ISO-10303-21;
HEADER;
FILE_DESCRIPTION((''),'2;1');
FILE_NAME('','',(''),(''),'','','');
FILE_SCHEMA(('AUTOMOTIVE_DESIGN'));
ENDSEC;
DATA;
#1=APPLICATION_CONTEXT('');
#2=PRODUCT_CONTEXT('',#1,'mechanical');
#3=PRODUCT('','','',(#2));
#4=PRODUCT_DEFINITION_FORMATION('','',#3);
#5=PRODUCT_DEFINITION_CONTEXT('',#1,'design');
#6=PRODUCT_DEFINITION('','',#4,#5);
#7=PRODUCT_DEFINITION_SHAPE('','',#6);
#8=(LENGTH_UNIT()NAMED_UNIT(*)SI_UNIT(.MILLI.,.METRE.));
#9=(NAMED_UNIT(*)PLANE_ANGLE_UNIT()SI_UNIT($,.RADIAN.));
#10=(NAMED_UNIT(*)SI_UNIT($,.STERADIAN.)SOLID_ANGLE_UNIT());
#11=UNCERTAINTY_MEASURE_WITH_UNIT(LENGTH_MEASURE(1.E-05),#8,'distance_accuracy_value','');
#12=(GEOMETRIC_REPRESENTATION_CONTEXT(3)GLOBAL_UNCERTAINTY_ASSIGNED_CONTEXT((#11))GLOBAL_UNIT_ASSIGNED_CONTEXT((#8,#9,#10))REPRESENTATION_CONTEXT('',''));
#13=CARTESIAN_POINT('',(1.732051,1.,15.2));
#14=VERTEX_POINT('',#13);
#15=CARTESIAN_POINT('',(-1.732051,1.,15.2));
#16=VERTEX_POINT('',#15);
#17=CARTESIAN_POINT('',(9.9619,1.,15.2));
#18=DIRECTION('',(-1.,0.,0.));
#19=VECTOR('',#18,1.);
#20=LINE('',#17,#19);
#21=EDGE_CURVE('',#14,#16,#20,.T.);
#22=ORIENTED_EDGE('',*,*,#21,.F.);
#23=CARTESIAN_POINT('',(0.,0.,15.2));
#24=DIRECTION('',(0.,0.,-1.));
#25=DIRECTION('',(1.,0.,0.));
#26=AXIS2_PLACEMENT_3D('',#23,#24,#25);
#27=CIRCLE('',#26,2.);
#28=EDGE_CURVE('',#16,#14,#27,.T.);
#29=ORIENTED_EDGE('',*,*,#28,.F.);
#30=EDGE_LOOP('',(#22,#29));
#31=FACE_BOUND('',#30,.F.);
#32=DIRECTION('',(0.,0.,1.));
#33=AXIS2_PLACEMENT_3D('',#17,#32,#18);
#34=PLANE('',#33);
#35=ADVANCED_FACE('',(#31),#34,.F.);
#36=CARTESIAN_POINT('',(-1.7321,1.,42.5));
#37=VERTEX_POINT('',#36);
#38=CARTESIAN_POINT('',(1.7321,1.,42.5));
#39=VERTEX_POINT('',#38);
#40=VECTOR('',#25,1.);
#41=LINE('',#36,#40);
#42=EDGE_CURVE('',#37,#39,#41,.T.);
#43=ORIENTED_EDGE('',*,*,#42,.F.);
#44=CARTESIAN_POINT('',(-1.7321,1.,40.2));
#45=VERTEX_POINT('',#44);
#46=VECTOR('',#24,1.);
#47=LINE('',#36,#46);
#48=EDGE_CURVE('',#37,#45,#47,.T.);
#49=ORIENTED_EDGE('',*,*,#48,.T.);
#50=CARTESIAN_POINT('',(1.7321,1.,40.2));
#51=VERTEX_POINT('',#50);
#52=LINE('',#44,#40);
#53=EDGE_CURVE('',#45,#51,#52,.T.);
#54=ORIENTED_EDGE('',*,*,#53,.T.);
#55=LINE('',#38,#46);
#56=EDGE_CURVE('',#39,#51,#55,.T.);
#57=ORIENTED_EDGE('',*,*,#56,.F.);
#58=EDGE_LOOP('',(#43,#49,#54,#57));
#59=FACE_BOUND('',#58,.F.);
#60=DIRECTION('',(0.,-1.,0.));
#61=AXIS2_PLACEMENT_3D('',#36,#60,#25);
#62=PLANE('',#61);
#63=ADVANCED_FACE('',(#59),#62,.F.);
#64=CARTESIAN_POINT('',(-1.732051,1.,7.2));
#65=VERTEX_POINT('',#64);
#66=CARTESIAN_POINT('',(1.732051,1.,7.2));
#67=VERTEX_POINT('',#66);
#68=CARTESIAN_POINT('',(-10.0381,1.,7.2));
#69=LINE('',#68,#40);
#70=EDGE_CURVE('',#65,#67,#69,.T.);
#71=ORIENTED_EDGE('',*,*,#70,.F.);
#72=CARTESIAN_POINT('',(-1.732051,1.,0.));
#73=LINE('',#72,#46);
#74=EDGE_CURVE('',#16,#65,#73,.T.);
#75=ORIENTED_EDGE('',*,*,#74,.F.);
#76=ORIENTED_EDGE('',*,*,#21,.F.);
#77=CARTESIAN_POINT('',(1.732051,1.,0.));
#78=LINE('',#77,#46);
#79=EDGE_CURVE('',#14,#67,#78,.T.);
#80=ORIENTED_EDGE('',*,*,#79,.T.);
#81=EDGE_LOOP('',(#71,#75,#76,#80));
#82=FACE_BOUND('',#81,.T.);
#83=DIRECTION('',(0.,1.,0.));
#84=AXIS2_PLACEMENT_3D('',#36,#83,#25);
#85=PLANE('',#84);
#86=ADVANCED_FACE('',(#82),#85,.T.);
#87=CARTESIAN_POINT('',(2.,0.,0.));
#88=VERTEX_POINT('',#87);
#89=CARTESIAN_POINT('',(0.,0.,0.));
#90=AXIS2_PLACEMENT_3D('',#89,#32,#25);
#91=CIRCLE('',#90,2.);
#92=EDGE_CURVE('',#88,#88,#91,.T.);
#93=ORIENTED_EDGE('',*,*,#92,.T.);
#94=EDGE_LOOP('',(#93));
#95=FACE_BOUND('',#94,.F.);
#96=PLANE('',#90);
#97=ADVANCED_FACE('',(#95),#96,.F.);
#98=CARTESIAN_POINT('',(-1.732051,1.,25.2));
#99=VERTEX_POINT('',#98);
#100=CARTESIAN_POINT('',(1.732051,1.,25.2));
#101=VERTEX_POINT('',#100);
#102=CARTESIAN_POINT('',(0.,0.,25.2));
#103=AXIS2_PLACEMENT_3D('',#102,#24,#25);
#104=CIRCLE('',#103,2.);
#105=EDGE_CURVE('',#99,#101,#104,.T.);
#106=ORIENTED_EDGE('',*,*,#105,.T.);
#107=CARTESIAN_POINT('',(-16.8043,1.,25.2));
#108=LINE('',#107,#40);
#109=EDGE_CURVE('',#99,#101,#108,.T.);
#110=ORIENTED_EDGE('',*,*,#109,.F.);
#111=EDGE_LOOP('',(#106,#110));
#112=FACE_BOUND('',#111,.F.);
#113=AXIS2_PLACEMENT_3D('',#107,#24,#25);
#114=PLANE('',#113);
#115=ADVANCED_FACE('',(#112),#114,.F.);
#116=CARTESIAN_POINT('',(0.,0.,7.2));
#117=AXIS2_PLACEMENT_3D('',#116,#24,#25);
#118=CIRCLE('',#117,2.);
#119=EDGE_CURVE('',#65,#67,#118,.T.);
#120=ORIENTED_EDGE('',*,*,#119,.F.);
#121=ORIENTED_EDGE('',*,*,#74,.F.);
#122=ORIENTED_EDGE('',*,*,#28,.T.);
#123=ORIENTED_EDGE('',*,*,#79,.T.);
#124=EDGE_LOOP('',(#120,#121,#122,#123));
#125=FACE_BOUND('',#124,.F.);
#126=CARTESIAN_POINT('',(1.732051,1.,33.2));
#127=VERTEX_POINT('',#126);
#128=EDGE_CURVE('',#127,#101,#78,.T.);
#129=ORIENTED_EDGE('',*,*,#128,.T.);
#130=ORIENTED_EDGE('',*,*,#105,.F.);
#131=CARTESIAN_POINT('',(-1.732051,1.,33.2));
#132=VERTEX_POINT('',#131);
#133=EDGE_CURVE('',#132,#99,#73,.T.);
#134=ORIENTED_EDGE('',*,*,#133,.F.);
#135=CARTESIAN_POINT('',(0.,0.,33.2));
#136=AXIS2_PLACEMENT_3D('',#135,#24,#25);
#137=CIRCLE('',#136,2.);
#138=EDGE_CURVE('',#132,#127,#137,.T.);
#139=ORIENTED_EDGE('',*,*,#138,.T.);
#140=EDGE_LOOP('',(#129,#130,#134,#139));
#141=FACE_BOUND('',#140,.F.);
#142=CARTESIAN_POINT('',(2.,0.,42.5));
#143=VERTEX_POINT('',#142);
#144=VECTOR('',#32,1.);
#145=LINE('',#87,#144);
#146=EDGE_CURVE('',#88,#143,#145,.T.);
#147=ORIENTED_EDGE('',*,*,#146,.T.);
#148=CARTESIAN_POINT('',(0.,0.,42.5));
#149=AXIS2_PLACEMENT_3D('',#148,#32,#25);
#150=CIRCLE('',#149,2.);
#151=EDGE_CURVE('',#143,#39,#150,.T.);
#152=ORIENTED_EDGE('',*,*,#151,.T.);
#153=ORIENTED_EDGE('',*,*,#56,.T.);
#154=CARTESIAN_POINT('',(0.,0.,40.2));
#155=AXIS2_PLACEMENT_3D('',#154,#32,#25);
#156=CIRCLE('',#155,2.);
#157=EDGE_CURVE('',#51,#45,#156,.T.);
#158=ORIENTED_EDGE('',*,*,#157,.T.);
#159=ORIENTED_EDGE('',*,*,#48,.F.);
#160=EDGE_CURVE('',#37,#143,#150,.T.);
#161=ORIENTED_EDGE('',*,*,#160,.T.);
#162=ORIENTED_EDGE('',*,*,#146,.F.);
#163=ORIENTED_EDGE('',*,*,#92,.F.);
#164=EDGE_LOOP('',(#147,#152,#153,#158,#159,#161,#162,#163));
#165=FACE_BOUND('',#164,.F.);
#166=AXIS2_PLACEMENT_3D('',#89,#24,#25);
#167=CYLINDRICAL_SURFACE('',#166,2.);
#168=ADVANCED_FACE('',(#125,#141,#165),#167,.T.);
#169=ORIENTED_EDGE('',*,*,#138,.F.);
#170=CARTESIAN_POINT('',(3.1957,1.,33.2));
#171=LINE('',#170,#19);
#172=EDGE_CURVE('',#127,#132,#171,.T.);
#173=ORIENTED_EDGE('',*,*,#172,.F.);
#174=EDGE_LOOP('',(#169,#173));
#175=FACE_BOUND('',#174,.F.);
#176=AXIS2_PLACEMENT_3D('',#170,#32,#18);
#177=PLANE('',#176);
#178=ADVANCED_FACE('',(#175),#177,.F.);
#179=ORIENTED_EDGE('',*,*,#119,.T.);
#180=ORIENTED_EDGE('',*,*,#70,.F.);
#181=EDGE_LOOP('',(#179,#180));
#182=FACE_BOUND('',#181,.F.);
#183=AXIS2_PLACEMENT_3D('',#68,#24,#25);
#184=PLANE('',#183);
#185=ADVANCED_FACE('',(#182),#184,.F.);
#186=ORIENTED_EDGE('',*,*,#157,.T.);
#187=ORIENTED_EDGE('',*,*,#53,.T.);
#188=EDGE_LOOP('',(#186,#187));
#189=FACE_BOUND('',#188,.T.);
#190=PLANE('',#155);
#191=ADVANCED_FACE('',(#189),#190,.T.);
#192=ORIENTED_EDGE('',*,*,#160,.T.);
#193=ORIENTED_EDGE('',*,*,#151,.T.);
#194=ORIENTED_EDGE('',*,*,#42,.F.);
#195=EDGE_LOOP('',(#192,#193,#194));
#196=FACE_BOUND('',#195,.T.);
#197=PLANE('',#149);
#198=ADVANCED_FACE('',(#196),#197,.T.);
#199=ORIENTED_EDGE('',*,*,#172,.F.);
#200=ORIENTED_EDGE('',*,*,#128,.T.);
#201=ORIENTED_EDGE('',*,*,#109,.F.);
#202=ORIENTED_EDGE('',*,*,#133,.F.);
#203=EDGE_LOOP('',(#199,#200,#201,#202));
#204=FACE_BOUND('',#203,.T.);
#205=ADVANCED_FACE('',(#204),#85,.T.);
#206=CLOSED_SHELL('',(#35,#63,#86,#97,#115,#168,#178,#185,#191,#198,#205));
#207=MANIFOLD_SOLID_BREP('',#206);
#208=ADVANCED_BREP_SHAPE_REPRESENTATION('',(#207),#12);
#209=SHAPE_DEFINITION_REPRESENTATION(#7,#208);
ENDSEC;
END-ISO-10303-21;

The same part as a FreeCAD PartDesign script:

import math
import FreeCAD as App
import Part
import Sketcher
Q = App.Units.Quantity


def add_polygon(sketch, points):
    """Adds a closed chain of lines whose ends are joined by coincident constraints."""
    first, n = sketch.GeometryCount, len(points)
    for a, b in zip(points, points[1:] + points[:1]):
        sketch.addGeometry(Part.LineSegment(App.Vector(*a, 0), App.Vector(*b, 0)), False)
    for i in range(n):
        sketch.addConstraint(Sketcher.Constraint("Coincident", first + i, 2, first + (i + 1) % n, 1))

doc = App.newDocument("Part")
params = doc.addObject("Spreadsheet::Sheet", "Params")
for row, (alias, value) in enumerate([
    ("sketch1_diameter", "4 mm"),
    ("pad1_length", "42.5 mm"),
    ("sketch2_radius", "2 mm"),
    ("pocket1_length", "2.3 mm"),
    ("sketch3_width", "20 mm"),
    ("sketch3_height", "8 mm"),
    ("pocket2_length", "10 mm"),
], start=1):
    params.set(f"A{row}", alias)
    params.set(f"B{row}", "=" + value)
    params.setAlias(f"B{row}", alias)

body = doc.addObject("PartDesign::Body", "Body")

# Sketch on XY plane
sketch1 = doc.addObject("Sketcher::SketchObject", "Sketch")
body.addObject(sketch1)
sketch1.AttachmentSupport = (doc.XY_Plane, [""])
sketch1.MapMode = "FlatFace"
sketch1.addGeometry(Part.Circle(App.Vector(0, 0, 0), App.Vector(0, 0, 1), 2), False)
sketch1.addConstraint([
    Sketcher.Constraint("Coincident", 0, 3, -1, 1),
    Sketcher.Constraint("Diameter", 0, Q("4 mm")),
])
sketch1.setExpression("Constraints[1]", "Params.sketch1_diameter")
pad1 = doc.addObject("PartDesign::Pad", "Pad")
body.addObject(pad1)
pad1.Profile = sketch1
pad1.setExpression("Length", "Params.pad1_length")

# Sketch on XY plane
sketch2 = doc.addObject("Sketcher::SketchObject", "Sketch001")
body.addObject(sketch2)
sketch2.AttachmentSupport = (doc.XY_Plane, [""])
sketch2.MapMode = "FlatFace"
sketch2.AttachmentOffset = App.Placement(App.Vector(0, 0, 42.5), App.Rotation())
sketch2.addGeometry([
    Part.LineSegment(App.Vector(-1.7321, 1, 0), App.Vector(1.7321, 1, 0)),
    Part.ArcOfCircle(Part.Circle(App.Vector(0, 0, 0), App.Vector(0, 0, 1), 2), math.radians(29.999295), math.radians(150.000705)),
], False)
sketch2.addConstraint([
    Sketcher.Constraint("Coincident", 0, 1, 1, 2),
    Sketcher.Constraint("Coincident", 1, 1, 0, 2),
    Sketcher.Constraint("Horizontal", 0),
    Sketcher.Constraint("Coincident", 1, 3, -1, 1),
    Sketcher.Constraint("DistanceY", -1, 1, 0, 1, Q("1 mm")),
    Sketcher.Constraint("Radius", 1, Q("2 mm")),
])
sketch2.setExpression("Constraints[5]", "Params.sketch2_radius")
pocket1 = doc.addObject("PartDesign::Pocket", "Pocket")
body.addObject(pocket1)
pocket1.Profile = sketch2
pocket1.setExpression("Length", "Params.pocket1_length")

# Sketch on XZ plane
sketch3 = doc.addObject("Sketcher::SketchObject", "Sketch002")
body.addObject(sketch3)
sketch3.AttachmentSupport = (doc.XZ_Plane, [""])
sketch3.MapMode = "FlatFace"
sketch3.AttachmentOffset = App.Placement(App.Vector(0, 0, -1), App.Rotation())
add_polygon(sketch3, [(3.1957, 25.2), (-16.8043, 25.2), (-16.8043, 33.2), (3.1957, 33.2)])  # lines 0-3
add_polygon(sketch3, [(9.9619, 7.2), (-10.0381, 7.2), (-10.0381, 15.2), (9.9619, 15.2)])  # lines 4-7
sketch3.addConstraint([
    Sketcher.Constraint("Horizontal", 0),
    Sketcher.Constraint("Vertical", 1),
    Sketcher.Constraint("Horizontal", 2),
    Sketcher.Constraint("Vertical", 3),
    Sketcher.Constraint("Horizontal", 4),
    Sketcher.Constraint("Vertical", 5),
    Sketcher.Constraint("Horizontal", 6),
    Sketcher.Constraint("Vertical", 7),
    Sketcher.Constraint("Equal", 2, 4),
    Sketcher.Constraint("Equal", 3, 5),
    Sketcher.Constraint("DistanceX", 0, 2, 0, 1, Q("20 mm")),
    Sketcher.Constraint("DistanceY", 1, 1, 1, 2, Q("8 mm")),
    Sketcher.Constraint("DistanceY", 4, 2, 0, 2, Q("18 mm")),
    Sketcher.Constraint("DistanceY", -1, 1, 0, 2, Q("25.2 mm")),
    Sketcher.Constraint("DistanceX", 4, 2, -1, 1, Q("10.038 mm")),
    Sketcher.Constraint("DistanceX", 0, 2, -1, 1, Q("16.8043 mm")),
])
sketch3.setExpression("Constraints[18]", "Params.sketch3_width")
sketch3.setExpression("Constraints[19]", "Params.sketch3_height")
pocket2 = doc.addObject("PartDesign::Pocket", "Pocket001")
body.addObject(pocket2)
pocket2.Profile = sketch3
pocket2.setExpression("Length", "Params.pocket2_length")

doc.recompute()
